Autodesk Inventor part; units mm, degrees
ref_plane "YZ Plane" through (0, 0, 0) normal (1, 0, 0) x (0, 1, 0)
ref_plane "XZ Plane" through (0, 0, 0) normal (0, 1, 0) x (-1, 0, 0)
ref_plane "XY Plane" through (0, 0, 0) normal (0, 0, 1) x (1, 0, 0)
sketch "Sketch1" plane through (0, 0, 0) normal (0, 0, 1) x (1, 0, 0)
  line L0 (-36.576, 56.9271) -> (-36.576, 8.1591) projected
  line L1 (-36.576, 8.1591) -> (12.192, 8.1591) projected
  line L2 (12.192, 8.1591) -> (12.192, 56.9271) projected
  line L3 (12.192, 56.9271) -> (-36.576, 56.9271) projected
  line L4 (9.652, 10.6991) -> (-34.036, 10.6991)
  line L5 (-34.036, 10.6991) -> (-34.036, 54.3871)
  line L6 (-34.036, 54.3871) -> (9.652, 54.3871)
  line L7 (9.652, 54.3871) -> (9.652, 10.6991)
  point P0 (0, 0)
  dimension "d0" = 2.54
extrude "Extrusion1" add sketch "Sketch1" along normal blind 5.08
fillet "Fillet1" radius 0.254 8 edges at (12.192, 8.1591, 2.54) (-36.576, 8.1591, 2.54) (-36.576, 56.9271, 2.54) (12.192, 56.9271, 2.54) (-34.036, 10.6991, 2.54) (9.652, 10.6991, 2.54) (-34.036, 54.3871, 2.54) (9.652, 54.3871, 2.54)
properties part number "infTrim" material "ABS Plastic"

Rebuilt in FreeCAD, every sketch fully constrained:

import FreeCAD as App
import Part
import Sketcher
Q = App.Units.Quantity


def edges_at(feature, points):
    """Names of the edges that pass closest to the given points."""
    edges = feature.Shape.Edges
    near = lambda p: min(range(len(edges)), key=lambda i: edges[i].distToShape(Part.Vertex(*p))[0])
    return sorted({f"Edge{near(p) + 1}" for p in points})

doc = App.newDocument("Part")
body = doc.addObject("PartDesign::Body", "Body")

# Sketch on XY plane
sketch1 = doc.addObject("Sketcher::SketchObject", "Sketch")
body.addObject(sketch1)
sketch1.AttachmentSupport = (doc.XY_Plane, [""])
sketch1.MapMode = "FlatFace"
sketch1.addGeometry([
    Part.LineSegment(App.Vector(12, 57, 0), App.Vector(-37, 57, 0)),  # 0
    Part.LineSegment(App.Vector(-37, 57, 0), App.Vector(-37, 8, 0)),  # 1
    Part.LineSegment(App.Vector(-37, 8, 0), App.Vector(12, 8, 0)),  # 2
    Part.LineSegment(App.Vector(12, 8, 0), App.Vector(12, 57, 0)),  # 3
    Part.LineSegment(App.Vector(10, 54, 0), App.Vector(10, 11, 0)),  # 4
    Part.LineSegment(App.Vector(10, 11, 0), App.Vector(-34, 11, 0)),  # 5
    Part.LineSegment(App.Vector(-34, 11, 0), App.Vector(-34, 54, 0)),  # 6
    Part.LineSegment(App.Vector(-34, 54, 0), App.Vector(10, 54, 0)),  # 7
], False)
sketch1.addConstraint([
    Sketcher.Constraint("Coincident", 0, 2, 1, 1),
    Sketcher.Constraint("Coincident", 1, 2, 2, 1),
    Sketcher.Constraint("Coincident", 2, 2, 3, 1),
    Sketcher.Constraint("Coincident", 3, 2, 0, 1),
    Sketcher.Constraint("Coincident", 4, 2, 5, 1),
    Sketcher.Constraint("Coincident", 5, 2, 6, 1),
    Sketcher.Constraint("Coincident", 6, 2, 7, 1),
    Sketcher.Constraint("Coincident", 7, 2, 4, 1),
    Sketcher.Constraint("Horizontal", 0),
    Sketcher.Constraint("Vertical", 1),
    Sketcher.Constraint("Horizontal", 2),
    Sketcher.Constraint("Vertical", 3),
    Sketcher.Constraint("Vertical", 4),
    Sketcher.Constraint("Horizontal", 5),
    Sketcher.Constraint("Vertical", 6),
    Sketcher.Constraint("Horizontal", 7),
    Sketcher.Constraint("Equal", 2, 1),
    Sketcher.Constraint("Equal", 7, 4),
    Sketcher.Constraint("DistanceX", 4, 2, 2, 2, Q("0.1 in")),
    Sketcher.Constraint("DistanceY", 2, 2, 4, 2, Q("0.1 in")),
    Sketcher.Constraint("DistanceX", 1, 2, 5, 2, Q("0.1 in")),
    Sketcher.Constraint("DistanceX", 0, 2, 0, 1, Q("1.92 in")),
    Sketcher.Constraint("DistanceX", 0, 2, -1, 1, Q("1.44 in")),
    Sketcher.Constraint("DistanceY", -1, 1, 0, 2, Q("56.927 mm")),
])
pad1 = doc.addObject("PartDesign::Pad", "Pad")
body.addObject(pad1)
pad1.Profile = sketch1
pad1.Length = Q("0.2 in")
doc.recompute()

fillet = doc.addObject("PartDesign::Fillet", "Fillet")
body.addObject(fillet)
fillet.Base = (pad1, edges_at(pad1, [
    (12.192, 8.159, 2.54),
    (-36.576, 8.159, 2.54),
    (-36.576, 56.927, 2.54),
    (12.192, 56.927, 2.54),
    (-34.036, 10.699, 2.54),
    (9.652, 10.699, 2.54),
    (-34.036, 54.387, 2.54),
    (9.652, 54.387, 2.54),
]))
fillet.Radius = Q("0.01 in")

doc.recompute()
